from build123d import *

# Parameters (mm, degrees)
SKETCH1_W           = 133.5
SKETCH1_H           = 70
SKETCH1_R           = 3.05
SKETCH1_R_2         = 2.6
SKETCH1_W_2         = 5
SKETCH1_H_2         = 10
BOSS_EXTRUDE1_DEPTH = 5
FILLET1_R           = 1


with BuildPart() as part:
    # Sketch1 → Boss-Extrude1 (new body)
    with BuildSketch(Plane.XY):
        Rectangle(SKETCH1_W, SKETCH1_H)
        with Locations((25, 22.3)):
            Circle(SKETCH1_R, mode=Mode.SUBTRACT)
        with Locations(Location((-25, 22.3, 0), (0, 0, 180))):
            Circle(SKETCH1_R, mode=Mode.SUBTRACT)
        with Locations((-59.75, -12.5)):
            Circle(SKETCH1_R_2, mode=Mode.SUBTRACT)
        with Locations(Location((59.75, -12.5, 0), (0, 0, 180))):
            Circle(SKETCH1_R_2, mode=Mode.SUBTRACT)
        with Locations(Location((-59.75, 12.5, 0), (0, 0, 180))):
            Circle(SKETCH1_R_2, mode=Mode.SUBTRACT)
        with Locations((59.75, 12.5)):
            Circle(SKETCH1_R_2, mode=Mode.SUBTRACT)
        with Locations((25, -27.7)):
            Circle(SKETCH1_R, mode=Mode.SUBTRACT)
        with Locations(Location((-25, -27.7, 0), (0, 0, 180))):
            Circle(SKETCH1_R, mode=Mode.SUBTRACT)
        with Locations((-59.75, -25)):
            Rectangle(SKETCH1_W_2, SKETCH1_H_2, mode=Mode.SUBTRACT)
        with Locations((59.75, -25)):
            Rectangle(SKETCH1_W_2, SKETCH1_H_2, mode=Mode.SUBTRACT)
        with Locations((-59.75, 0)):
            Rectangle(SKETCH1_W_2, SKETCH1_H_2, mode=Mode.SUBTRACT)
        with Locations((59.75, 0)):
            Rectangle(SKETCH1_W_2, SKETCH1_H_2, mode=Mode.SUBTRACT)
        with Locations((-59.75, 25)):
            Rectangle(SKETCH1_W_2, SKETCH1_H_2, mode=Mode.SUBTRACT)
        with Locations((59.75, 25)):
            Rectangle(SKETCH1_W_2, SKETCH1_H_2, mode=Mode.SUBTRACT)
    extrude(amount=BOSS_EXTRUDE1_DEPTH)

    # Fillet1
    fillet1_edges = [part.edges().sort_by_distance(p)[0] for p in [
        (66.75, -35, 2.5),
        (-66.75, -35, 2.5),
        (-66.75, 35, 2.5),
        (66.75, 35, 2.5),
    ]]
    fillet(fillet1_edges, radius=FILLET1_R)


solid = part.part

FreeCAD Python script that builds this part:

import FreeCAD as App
import Part
import Sketcher
Q = App.Units.Quantity


def edges_at(feature, points):
    """Names of the edges that pass closest to the given points."""
    edges = feature.Shape.Edges
    near = lambda p: min(range(len(edges)), key=lambda i: edges[i].distToShape(Part.Vertex(*p))[0])
    return sorted({f"Edge{near(p) + 1}" for p in points})

doc = App.newDocument("Part")
body = doc.addObject("PartDesign::Body", "Body")

# Sketch on XY plane
sketch1 = body.newObject("Sketcher::SketchObject", "Sketch")
sketch1.AttachmentSupport = (doc.getObject("XY_Plane"), [""])
sketch1.MapMode = "FlatFace"
sketch1.addGeometry([
    Part.LineSegment(App.Vector(-66.75, 35, 0), App.Vector(-66.75, -35, 0)),  # 0
    Part.LineSegment(App.Vector(-66.75, -35, 0), App.Vector(66.75, -35, 0)),  # 1
    Part.LineSegment(App.Vector(66.75, -35, 0), App.Vector(66.75, 35, 0)),  # 2
    Part.LineSegment(App.Vector(66.75, 35, 0), App.Vector(-66.75, 35, 0)),  # 3
    Part.LineSegment(App.Vector(-57.25, -30, 0), App.Vector(-62.25, -30, 0)),  # 4
    Part.LineSegment(App.Vector(-62.25, -30, 0), App.Vector(-62.25, -20, 0)),  # 5
    Part.LineSegment(App.Vector(-62.25, -20, 0), App.Vector(-57.25, -20, 0)),  # 6
    Part.LineSegment(App.Vector(-57.25, -20, 0), App.Vector(-57.25, -30, 0)),  # 7
    Part.Circle(App.Vector(-25, -27.7, 0), App.Vector(0, 0, 1), 3.05),  # 8
    Part.Circle(App.Vector(-59.75, -12.5, 0), App.Vector(0, 0, 1), 2.6),  # 9
    Part.Circle(App.Vector(25, -27.7, 0), App.Vector(0, 0, 1), 3.05),  # 10
    Part.LineSegment(App.Vector(62.25, -30, 0), App.Vector(57.25, -30, 0)),  # 11
    Part.LineSegment(App.Vector(57.25, -30, 0), App.Vector(57.25, -20, 0)),  # 12
    Part.LineSegment(App.Vector(57.25, -20, 0), App.Vector(62.25, -20, 0)),  # 13
    Part.LineSegment(App.Vector(62.25, -20, 0), App.Vector(62.25, -30, 0)),  # 14
    Part.Circle(App.Vector(59.75, -12.5, 0), App.Vector(0, 0, 1), 2.6),  # 15
    Part.LineSegment(App.Vector(-57.25, -5, 0), App.Vector(-62.25, -5, 0)),  # 16
    Part.LineSegment(App.Vector(-62.25, -5, 0), App.Vector(-62.25, 5, 0)),  # 17
    Part.LineSegment(App.Vector(-62.25, 5, 0), App.Vector(-57.25, 5, 0)),  # 18
    Part.LineSegment(App.Vector(-57.25, 5, 0), App.Vector(-57.25, -5, 0)),  # 19
    Part.Circle(App.Vector(-59.75, 12.5, 0), App.Vector(0, 0, 1), 2.6),  # 20
    Part.LineSegment(App.Vector(-57.25, 20, 0), App.Vector(-62.25, 20, 0)),  # 21
    Part.LineSegment(App.Vector(-62.25, 20, 0), App.Vector(-62.25, 30, 0)),  # 22
    Part.LineSegment(App.Vector(-62.25, 30, 0), App.Vector(-57.25, 30, 0)),  # 23
    Part.LineSegment(App.Vector(-57.25, 30, 0), App.Vector(-57.25, 20, 0)),  # 24
    Part.Circle(App.Vector(-25, 22.3, 0), App.Vector(0, 0, 1), 3.05),  # 25
    Part.LineSegment(App.Vector(62.25, -5, 0), App.Vector(57.25, -5, 0)),  # 26
    Part.LineSegment(App.Vector(57.25, -5, 0), App.Vector(57.25, 5, 0)),  # 27
    Part.LineSegment(App.Vector(57.25, 5, 0), App.Vector(62.25, 5, 0)),  # 28
    Part.LineSegment(App.Vector(62.25, 5, 0), App.Vector(62.25, -5, 0)),  # 29
    Part.Circle(App.Vector(59.75, 12.5, 0), App.Vector(0, 0, 1), 2.6),  # 30
    Part.Circle(App.Vector(25, 22.3, 0), App.Vector(0, 0, 1), 3.05),  # 31
    Part.LineSegment(App.Vector(62.25, 20, 0), App.Vector(57.25, 20, 0)),  # 32
    Part.LineSegment(App.Vector(57.25, 20, 0), App.Vector(57.25, 30, 0)),  # 33
    Part.LineSegment(App.Vector(57.25, 30, 0), App.Vector(62.25, 30, 0)),  # 34
    Part.LineSegment(App.Vector(62.25, 30, 0), App.Vector(62.25, 20, 0)),  # 35
], False)
sketch1.addConstraint([
    Sketcher.Constraint("Coincident", 0, 2, 1, 1),
    Sketcher.Constraint("Coincident", 1, 2, 2, 1),
    Sketcher.Constraint("Coincident", 2, 2, 3, 1),
    Sketcher.Constraint("Coincident", 3, 2, 0, 1),
    Sketcher.Constraint("Coincident", 4, 2, 5, 1),
    Sketcher.Constraint("Coincident", 5, 2, 6, 1),
    Sketcher.Constraint("Coincident", 6, 2, 7, 1),
    Sketcher.Constraint("Coincident", 7, 2, 4, 1),
    Sketcher.Constraint("Coincident", 11, 2, 12, 1),
    Sketcher.Constraint("Coincident", 12, 2, 13, 1),
    Sketcher.Constraint("Coincident", 13, 2, 14, 1),
    Sketcher.Constraint("Coincident", 14, 2, 11, 1),
    Sketcher.Constraint("Coincident", 16, 2, 17, 1),
    Sketcher.Constraint("Coincident", 17, 2, 18, 1),
    Sketcher.Constraint("Coincident", 18, 2, 19, 1),
    Sketcher.Constraint("Coincident", 19, 2, 16, 1),
    Sketcher.Constraint("Coincident", 21, 2, 22, 1),
    Sketcher.Constraint("Coincident", 22, 2, 23, 1),
    Sketcher.Constraint("Coincident", 23, 2, 24, 1),
    Sketcher.Constraint("Coincident", 24, 2, 21, 1),
    Sketcher.Constraint("Coincident", 26, 2, 27, 1),
    Sketcher.Constraint("Coincident", 27, 2, 28, 1),
    Sketcher.Constraint("Coincident", 28, 2, 29, 1),
    Sketcher.Constraint("Coincident", 29, 2, 26, 1),
    Sketcher.Constraint("Coincident", 32, 2, 33, 1),
    Sketcher.Constraint("Coincident", 33, 2, 34, 1),
    Sketcher.Constraint("Coincident", 34, 2, 35, 1),
    Sketcher.Constraint("Coincident", 35, 2, 32, 1),
    Sketcher.Constraint("Vertical", 0),
    Sketcher.Constraint("Horizontal", 1),
    Sketcher.Constraint("Vertical", 2),
    Sketcher.Constraint("Horizontal", 3),
    Sketcher.Constraint("Horizontal", 4),
    Sketcher.Constraint("Vertical", 5),
    Sketcher.Constraint("Horizontal", 6),
    Sketcher.Constraint("Vertical", 7),
    Sketcher.Constraint("Horizontal", 11),
    Sketcher.Constraint("Vertical", 12),
    Sketcher.Constraint("Horizontal", 13),
    Sketcher.Constraint("Vertical", 14),
    Sketcher.Constraint("Horizontal", 16),
    Sketcher.Constraint("Vertical", 17),
    Sketcher.Constraint("Horizontal", 18),
    Sketcher.Constraint("Vertical", 19),
    Sketcher.Constraint("Horizontal", 21),
    Sketcher.Constraint("Vertical", 22),
    Sketcher.Constraint("Horizontal", 23),
    Sketcher.Constraint("Vertical", 24),
    Sketcher.Constraint("Horizontal", 26),
    Sketcher.Constraint("Vertical", 27),
    Sketcher.Constraint("Horizontal", 28),
    Sketcher.Constraint("Vertical", 29),
    Sketcher.Constraint("Horizontal", 32),
    Sketcher.Constraint("Vertical", 33),
    Sketcher.Constraint("Horizontal", 34),
    Sketcher.Constraint("Vertical", 35),
    Sketcher.Constraint("Equal", 8, 10),
    Sketcher.Constraint("Equal", 9, 15),
    Sketcher.Constraint("Equal", 15, 20),
    Sketcher.Constraint("Equal", 10, 25),
    Sketcher.Constraint("Equal", 20, 30),
    Sketcher.Constraint("Equal", 25, 31),
    Sketcher.Constraint("Symmetric", 15, 3, 20, 3, -1, 1),
    Sketcher.Constraint("Symmetric", 9, 3, 30, 3, -1, 1),
    Sketcher.Constraint("Symmetric", 0, 2, 2, 2, -1, 1),
    Sketcher.Constraint("Symmetric", 13, 2, 21, 2, -1, 1),
    Sketcher.Constraint("Symmetric", 11, 2, 23, 2, -1, 1),
    Sketcher.Constraint("Symmetric", 18, 2, 26, 2, -1, 1),
    Sketcher.Constraint("Symmetric", 16, 2, 28, 2, -1, 1),
    Sketcher.Constraint("Symmetric", 6, 2, 32, 2, -1, 1),
    Sketcher.Constraint("Symmetric", 4, 2, 34, 2, -1, 1),
    Sketcher.Constraint("Symmetric", 8, 3, 10, 3, -2),
    Sketcher.Constraint("Symmetric", 9, 3, 15, 3, -2),
    Sketcher.Constraint("Symmetric", 25, 3, 31, 3, -2),
    Sketcher.Constraint("Symmetric", 7, 2, 11, 2, -2),
    Sketcher.Constraint("Symmetric", 5, 2, 13, 2, -2),
    Sketcher.Constraint("Horizontal", 19, 2, 26, 2),
    Sketcher.Constraint("Vertical", 8, 3, 25, 3),
    Sketcher.Constraint("Vertical", 5, 2, 16, 2),
    Sketcher.Constraint("Vertical", 7, 2, 18, 2),
    Sketcher.Constraint("Equal", 14, 17),
    Sketcher.Constraint("Diameter", 8, Q("6.1 mm")),
    Sketcher.Constraint("Diameter", 9, Q("5.2 mm")),
    Sketcher.Constraint("DistanceX", 4, 2, 4, 1, Q("5 mm")),
    Sketcher.Constraint("DistanceY", 0, 2, 0, 1, Q("70 mm")),
    Sketcher.Constraint("DistanceY", 5, 1, 5, 2, Q("10 mm")),
    Sketcher.Constraint("DistanceX", 1, 1, 1, 2, Q("133.5 mm")),
    Sketcher.Constraint("DistanceX", 8, 3, -1, 1, Q("25 mm")),
    Sketcher.Constraint("DistanceY", 4, 2, -1, 1, Q("30 mm")),
    Sketcher.Constraint("DistanceY", 9, 3, 20, 3, Q("25 mm")),
    Sketcher.Constraint("DistanceY", 8, 3, 25, 3, Q("50 mm")),
    Sketcher.Constraint("DistanceX", 0, 2, 9, 3, Q("7 mm")),
    Sketcher.Constraint("DistanceY", 8, 3, -1, 1, Q("27.7 mm")),
    Sketcher.Constraint("DistanceX", 0, 2, 4, 2, Q("4.5 mm")),
])
pad1 = body.newObject("PartDesign::Pad", "Pad")
pad1.Profile = sketch1
pad1.Length = 5
doc.recompute()

fillet = body.newObject("PartDesign::Fillet", "Fillet")
fillet.Base = (pad1, edges_at(pad1, [
    (66.75, -35, 2.5),
    (-66.75, -35, 2.5),
    (-66.75, 35, 2.5),
    (66.75, 35, 2.5),
]))
fillet.Radius = 1

doc.recompute()
